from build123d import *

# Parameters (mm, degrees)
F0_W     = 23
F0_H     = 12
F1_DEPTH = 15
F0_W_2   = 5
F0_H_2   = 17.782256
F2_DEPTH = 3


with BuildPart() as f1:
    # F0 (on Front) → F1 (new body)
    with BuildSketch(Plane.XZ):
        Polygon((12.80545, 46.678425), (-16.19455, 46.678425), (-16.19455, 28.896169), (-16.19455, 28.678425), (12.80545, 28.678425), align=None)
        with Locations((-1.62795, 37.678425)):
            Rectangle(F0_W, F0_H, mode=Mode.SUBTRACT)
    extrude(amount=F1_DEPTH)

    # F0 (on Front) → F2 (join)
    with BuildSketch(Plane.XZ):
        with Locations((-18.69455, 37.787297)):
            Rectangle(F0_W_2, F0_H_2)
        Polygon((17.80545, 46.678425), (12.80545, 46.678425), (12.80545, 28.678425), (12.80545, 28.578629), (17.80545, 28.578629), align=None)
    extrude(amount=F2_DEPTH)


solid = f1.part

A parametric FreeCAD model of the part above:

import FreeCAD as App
import Part
import Sketcher
from FreeCAD import Vector


def add_polygon(sketch, points):
    """Adds a closed chain of lines whose ends are joined by coincident constraints."""
    first, n = sketch.GeometryCount, len(points)
    for a, b in zip(points, points[1:] + points[:1]):
        sketch.addGeometry(Part.LineSegment(App.Vector(*a, 0), App.Vector(*b, 0)), False)
    for i in range(n):
        sketch.addConstraint(Sketcher.Constraint("Coincident", first + i, 2, first + (i + 1) % n, 1))

doc = App.newDocument("Part")
params = doc.addObject("Spreadsheet::Sheet", "Params")
for row, (alias, value) in enumerate([
    ("sketch1_width", "29 mm"),
    ("sketch1_width2", "23 mm"),
    ("sketch1_height", "18 mm"),
    ("sketch1_height2", "12 mm"),
    ("pad1_length", "15 mm"),
    ("sketch2_width", "5 mm"),
    ("pad2_length", "3 mm"),
], start=1):
    params.set(f"A{row}", alias)
    params.set(f"B{row}", "=" + value)
    params.setAlias(f"B{row}", alias)

body = doc.addObject("PartDesign::Body", "Body")

# Sketch on XZ plane
sketch1 = body.newObject("Sketcher::SketchObject", "Sketch")
sketch1.AttachmentSupport = (doc.getObject("XZ_Plane"), [""])
sketch1.MapMode = "FlatFace"
add_polygon(sketch1, [(12.80545, 46.678425), (-16.19455, 46.678425), (-16.19455, 28.678425), (12.80545, 28.678425)])  # lines 0-3
add_polygon(sketch1, [(9.87205, 31.678425), (-13.12795, 31.678425), (-13.12795, 43.678425), (9.87205, 43.678425)])  # lines 4-7
sketch1.addConstraint([
    Sketcher.Constraint("Horizontal", 0),
    Sketcher.Constraint("Vertical", 1),
    Sketcher.Constraint("Horizontal", 2),
    Sketcher.Constraint("Vertical", 3),
    Sketcher.Constraint("Horizontal", 4),
    Sketcher.Constraint("Vertical", 5),
    Sketcher.Constraint("Horizontal", 6),
    Sketcher.Constraint("Vertical", 7),
    Sketcher.Constraint("DistanceX", 0, 2, 0, 1, 29.0),
    Sketcher.Constraint("DistanceX", 4, 2, 4, 1, 23.0),
    Sketcher.Constraint("DistanceY", 1, 2, 1, 1, 18.0),
    Sketcher.Constraint("DistanceY", 5, 1, 5, 2, 12.0),
    Sketcher.Constraint("DistanceY", 1, 2, 4, 2, 3.0),
    Sketcher.Constraint("DistanceX", 1, 2, 4, 2, 3.0666),
    Sketcher.Constraint("DistanceX", 0, 2, -1, 1, 16.19455),
    Sketcher.Constraint("DistanceY", -1, 1, 0, 2, 46.678425),
])
sketch1.setExpression("Constraints[16]", "Params.sketch1_width")
sketch1.setExpression("Constraints[17]", "Params.sketch1_width2")
sketch1.setExpression("Constraints[18]", "Params.sketch1_height")
sketch1.setExpression("Constraints[19]", "Params.sketch1_height2")
pad1 = body.newObject("PartDesign::Pad", "Pad")
pad1.Profile = sketch1
pad1.setExpression("Length", "Params.pad1_length")

# Sketch on XZ plane
sketch2 = body.newObject("Sketcher::SketchObject", "Sketch001")
sketch2.AttachmentSupport = (doc.getObject("XZ_Plane"), [""])
sketch2.MapMode = "FlatFace"
add_polygon(sketch2, [(-21.19455, 46.678425), (-21.19455, 28.896169), (-16.19455, 28.896169), (-16.19455, 46.678425)])  # lines 0-3
add_polygon(sketch2, [(17.80545, 46.678425), (12.80545, 46.678425), (12.80545, 28.578629), (17.80545, 28.578629)])  # lines 4-7
sketch2.addConstraint([
    Sketcher.Constraint("Vertical", 0),
    Sketcher.Constraint("Horizontal", 1),
    Sketcher.Constraint("Vertical", 2),
    Sketcher.Constraint("Horizontal", 3),
    Sketcher.Constraint("Horizontal", 4),
    Sketcher.Constraint("Vertical", 5),
    Sketcher.Constraint("Horizontal", 6),
    Sketcher.Constraint("Vertical", 7),
    Sketcher.Constraint("Horizontal", 3, 2, 4, 2),
    Sketcher.Constraint("Equal", 3, 4),
    Sketcher.Constraint("DistanceX", 1, 1, 1, 2, 5.0),
    Sketcher.Constraint("DistanceX", 2, 2, 4, 2, 29.0),
    Sketcher.Constraint("DistanceY", 0, 2, 0, 1, 17.782256),
    Sketcher.Constraint("DistanceY", 5, 2, 5, 1, 18.099796),
    Sketcher.Constraint("DistanceX", 0, 2, -1, 1, 21.19455),
    Sketcher.Constraint("DistanceY", -1, 1, 0, 2, 28.896169),
])
sketch2.setExpression("Constraints[18]", "Params.sketch2_width")
pad2 = body.newObject("PartDesign::Pad", "Pad001")
pad2.Profile = sketch2
pad2.setExpression("Length", "Params.pad2_length")

doc.recompute()
